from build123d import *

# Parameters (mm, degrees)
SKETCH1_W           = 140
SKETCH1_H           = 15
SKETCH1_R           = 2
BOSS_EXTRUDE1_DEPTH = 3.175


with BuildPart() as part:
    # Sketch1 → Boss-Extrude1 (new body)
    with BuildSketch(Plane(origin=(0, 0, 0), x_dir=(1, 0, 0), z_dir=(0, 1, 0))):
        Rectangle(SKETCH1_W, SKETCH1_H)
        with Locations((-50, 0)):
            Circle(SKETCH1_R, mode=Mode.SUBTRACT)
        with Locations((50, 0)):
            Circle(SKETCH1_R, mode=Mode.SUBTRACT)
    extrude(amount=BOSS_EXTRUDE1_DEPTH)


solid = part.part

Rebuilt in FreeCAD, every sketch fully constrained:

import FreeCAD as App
import Part
import Sketcher
from FreeCAD import Vector


def add_polygon(sketch, points):
    """Adds a closed chain of lines whose ends are joined by coincident constraints."""
    first, n = sketch.GeometryCount, len(points)
    for a, b in zip(points, points[1:] + points[:1]):
        sketch.addGeometry(Part.LineSegment(App.Vector(*a, 0), App.Vector(*b, 0)), False)
    for i in range(n):
        sketch.addConstraint(Sketcher.Constraint("Coincident", first + i, 2, first + (i + 1) % n, 1))

doc = App.newDocument("Part")
body = doc.addObject("PartDesign::Body", "Body")

sketch1 = doc.addObject("Sketcher::SketchObject", "Sketch")
body.addObject(sketch1)
sketch1.AttachmentSupport = (doc.XZ_Plane, [""])
sketch1.MapMode = "FlatFace"
add_polygon(sketch1, [(-70, -7.5), (-70, 7.5), (70, 7.5), (70, -7.5)])
sketch1.addGeometry(Part.Circle(Vector(-50, 0, 0), Vector(0, 0, 1), 2), False)
sketch1.addGeometry(Part.Circle(Vector(50, 0, 0), Vector(0, 0, 1), 2), False)
sketch1.addConstraint([
    Sketcher.Constraint("Vertical", 0),
    Sketcher.Constraint("Horizontal", 1),
    Sketcher.Constraint("Vertical", 2),
    Sketcher.Constraint("Horizontal", 3),
    Sketcher.Constraint("Equal", 4, 5),
    Sketcher.Constraint("Symmetric", 4, 3, 5, 3, -1, 1),
    Sketcher.Constraint("Symmetric", 0, 2, 2, 2, -1, 1),
    Sketcher.Constraint("PointOnObject", 4, 3, -1),
    Sketcher.Constraint("Diameter", 4, 4.0),
    Sketcher.Constraint("DistanceX", 1, 1, 1, 2, 140.0),
    Sketcher.Constraint("DistanceY", 0, 1, 0, 2, 15.0),
    Sketcher.Constraint("DistanceX", 4, 3, -1, 1, 50.0),
])
pad1 = doc.addObject("PartDesign::Pad", "Pad")
body.addObject(pad1)
pad1.Profile = sketch1
pad1.Length = 3.175
pad1.Reversed = True

doc.recompute()
